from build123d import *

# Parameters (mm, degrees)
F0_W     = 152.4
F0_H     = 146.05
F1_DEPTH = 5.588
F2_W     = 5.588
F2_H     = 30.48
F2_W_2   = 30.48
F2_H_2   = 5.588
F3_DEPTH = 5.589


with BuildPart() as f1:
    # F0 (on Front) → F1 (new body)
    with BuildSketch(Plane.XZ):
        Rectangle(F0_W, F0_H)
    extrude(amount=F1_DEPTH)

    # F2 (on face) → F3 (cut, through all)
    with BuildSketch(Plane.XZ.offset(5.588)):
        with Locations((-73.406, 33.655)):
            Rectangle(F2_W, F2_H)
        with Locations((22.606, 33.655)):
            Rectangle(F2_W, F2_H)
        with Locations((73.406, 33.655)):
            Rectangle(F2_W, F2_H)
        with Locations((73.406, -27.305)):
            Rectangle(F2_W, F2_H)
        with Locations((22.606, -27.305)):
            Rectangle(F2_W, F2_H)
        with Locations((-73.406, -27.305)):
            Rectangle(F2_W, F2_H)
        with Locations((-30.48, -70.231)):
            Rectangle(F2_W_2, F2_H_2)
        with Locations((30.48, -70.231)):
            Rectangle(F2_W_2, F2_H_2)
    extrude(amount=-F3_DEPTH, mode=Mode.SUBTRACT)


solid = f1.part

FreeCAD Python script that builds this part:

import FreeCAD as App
import Part
import Sketcher

V = App.Vector
Q = App.Units.Quantity

doc = App.newDocument("Part")
params = doc.addObject("Spreadsheet::Sheet", "Params")
for row, (alias, value) in enumerate([
    ("sketch1_width", "6 in"),
    ("sketch1_height", "5.75 in"),
    ("pad1_length", "0.22 in"),
    ("sketch2_width", "1.2 in"),
    ("sketch2_width2", "0.22 in"),
], start=1):
    params.set(f"A{row}", alias)
    params.set(f"B{row}", "=" + value)
    params.setAlias(f"B{row}", alias)

body = doc.addObject("PartDesign::Body", "Body")

# Sketch on XZ plane
sketch1 = body.newObject("Sketcher::SketchObject", "Sketch")
sketch1.AttachmentSupport = (doc.getObject("XZ_Plane"), [""])
sketch1.MapMode = "FlatFace"
sketch1.addGeometry(Part.LineSegment(V(-76.2, 73.025, 0), V(-76.2, -73.025, 0)), False)
sketch1.addGeometry(Part.LineSegment(V(-76.2, -73.025, 0), V(76.2, -73.025, 0)), False)
sketch1.addGeometry(Part.LineSegment(V(76.2, -73.025, 0), V(76.2, 73.025, 0)), False)
sketch1.addGeometry(Part.LineSegment(V(76.2, 73.025, 0), V(-76.2, 73.025, 0)), False)
sketch1.addConstraint(Sketcher.Constraint("Coincident", 0, 2, 1, 1))
sketch1.addConstraint(Sketcher.Constraint("Coincident", 1, 2, 2, 1))
sketch1.addConstraint(Sketcher.Constraint("Coincident", 2, 2, 3, 1))
sketch1.addConstraint(Sketcher.Constraint("Coincident", 3, 2, 0, 1))
sketch1.addConstraint(Sketcher.Constraint("Vertical", 0))
sketch1.addConstraint(Sketcher.Constraint("Horizontal", 1))
sketch1.addConstraint(Sketcher.Constraint("Vertical", 2))
sketch1.addConstraint(Sketcher.Constraint("Horizontal", 3))
sketch1.addConstraint(Sketcher.Constraint("Symmetric", 0, 2, 2, 2, -1, 1))
sketch1.addConstraint(Sketcher.Constraint("DistanceX", 1, 1, 1, 2, Q("6 in")))
sketch1.addConstraint(Sketcher.Constraint("DistanceY", 0, 2, 0, 1, Q("5.75 in")))
sketch1.setExpression("Constraints[9]", "Params.sketch1_width")
sketch1.setExpression("Constraints[10]", "Params.sketch1_height")
pad1 = body.newObject("PartDesign::Pad", "Pad")
pad1.Profile = sketch1
pad1.setExpression("Length", "Params.pad1_length")

# Sketch on XZ plane
sketch2 = body.newObject("Sketcher::SketchObject", "Sketch001")
sketch2.AttachmentSupport = (doc.getObject("XZ_Plane"), [""])
sketch2.MapMode = "FlatFace"
sketch2.AttachmentOffset = App.Placement(V(0, 0, 0.22 * 25.4), App.Rotation())
sketch2.addGeometry(Part.LineSegment(V(-76.2, 48.895, 0), V(-76.2, 18.415, 0)), False)
sketch2.addGeometry(Part.LineSegment(V(-76.2, 18.415, 0), V(-70.612, 18.415, 0)), False)
sketch2.addGeometry(Part.LineSegment(V(-70.612, 18.415, 0), V(-70.612, 48.895, 0)), False)
sketch2.addGeometry(Part.LineSegment(V(-70.612, 48.895, 0), V(-76.2, 48.895, 0)), False)
sketch2.addGeometry(Part.LineSegment(V(19.812, 48.895, 0), V(19.812, 18.415, 0)), False)
sketch2.addGeometry(Part.LineSegment(V(19.812, 18.415, 0), V(25.4, 18.415, 0)), False)
sketch2.addGeometry(Part.LineSegment(V(25.4, 18.415, 0), V(25.4, 48.895, 0)), False)
sketch2.addGeometry(Part.LineSegment(V(25.4, 48.895, 0), V(19.812, 48.895, 0)), False)
sketch2.addGeometry(Part.LineSegment(V(70.612, 48.895, 0), V(70.612, 18.415, 0)), False)
sketch2.addGeometry(Part.LineSegment(V(70.612, 18.415, 0), V(76.2, 18.415, 0)), False)
sketch2.addGeometry(Part.LineSegment(V(76.2, 18.415, 0), V(76.2, 48.895, 0)), False)
sketch2.addGeometry(Part.LineSegment(V(76.2, 48.895, 0), V(70.612, 48.895, 0)), False)
sketch2.addGeometry(Part.LineSegment(V(70.612, -12.065, 0), V(70.612, -42.545, 0)), False)
sketch2.addGeometry(Part.LineSegment(V(70.612, -42.545, 0), V(76.2, -42.545, 0)), False)
sketch2.addGeometry(Part.LineSegment(V(76.2, -42.545, 0), V(76.2, -12.065, 0)), False)
sketch2.addGeometry(Part.LineSegment(V(76.2, -12.065, 0), V(70.612, -12.065, 0)), False)
sketch2.addGeometry(Part.LineSegment(V(19.812, -12.065, 0), V(19.812, -42.545, 0)), False)
sketch2.addGeometry(Part.LineSegment(V(19.812, -42.545, 0), V(25.4, -42.545, 0)), False)
sketch2.addGeometry(Part.LineSegment(V(25.4, -42.545, 0), V(25.4, -12.065, 0)), False)
sketch2.addGeometry(Part.LineSegment(V(25.4, -12.065, 0), V(19.812, -12.065, 0)), False)
sketch2.addGeometry(Part.LineSegment(V(-76.2, -12.065, 0), V(-76.2, -42.545, 0)), False)
sketch2.addGeometry(Part.LineSegment(V(-76.2, -42.545, 0), V(-70.612, -42.545, 0)), False)
sketch2.addGeometry(Part.LineSegment(V(-70.612, -42.545, 0), V(-70.612, -12.065, 0)), False)
sketch2.addGeometry(Part.LineSegment(V(-70.612, -12.065, 0), V(-76.2, -12.065, 0)), False)
sketch2.addGeometry(Part.LineSegment(V(-45.72, -67.437, 0), V(-45.72, -73.025, 0)), False)
sketch2.addGeometry(Part.LineSegment(V(-45.72, -73.025, 0), V(-15.24, -73.025, 0)), False)
sketch2.addGeometry(Part.LineSegment(V(-15.24, -73.025, 0), V(-15.24, -67.437, 0)), False)
sketch2.addGeometry(Part.LineSegment(V(-15.24, -67.437, 0), V(-45.72, -67.437, 0)), False)
sketch2.addGeometry(Part.LineSegment(V(15.24, -67.437, 0), V(15.24, -73.025, 0)), False)
sketch2.addGeometry(Part.LineSegment(V(15.24, -73.025, 0), V(45.72, -73.025, 0)), False)
sketch2.addGeometry(Part.LineSegment(V(45.72, -73.025, 0), V(45.72, -67.437, 0)), False)
sketch2.addGeometry(Part.LineSegment(V(45.72, -67.437, 0), V(15.24, -67.437, 0)), False)
sketch2.addConstraint(Sketcher.Constraint("Coincident", 0, 2, 1, 1))
sketch2.addConstraint(Sketcher.Constraint("Coincident", 1, 2, 2, 1))
sketch2.addConstraint(Sketcher.Constraint("Coincident", 2, 2, 3, 1))
sketch2.addConstraint(Sketcher.Constraint("Coincident", 3, 2, 0, 1))
sketch2.addConstraint(Sketcher.Constraint("Coincident", 4, 2, 5, 1))
sketch2.addConstraint(Sketcher.Constraint("Coincident", 5, 2, 6, 1))
sketch2.addConstraint(Sketcher.Constraint("Coincident", 6, 2, 7, 1))
sketch2.addConstraint(Sketcher.Constraint("Coincident", 7, 2, 4, 1))
sketch2.addConstraint(Sketcher.Constraint("Coincident", 8, 2, 9, 1))
sketch2.addConstraint(Sketcher.Constraint("Coincident", 9, 2, 10, 1))
sketch2.addConstraint(Sketcher.Constraint("Coincident", 10, 2, 11, 1))
sketch2.addConstraint(Sketcher.Constraint("Coincident", 11, 2, 8, 1))
sketch2.addConstraint(Sketcher.Constraint("Coincident", 12, 2, 13, 1))
sketch2.addConstraint(Sketcher.Constraint("Coincident", 13, 2, 14, 1))
sketch2.addConstraint(Sketcher.Constraint("Coincident", 14, 2, 15, 1))
sketch2.addConstraint(Sketcher.Constraint("Coincident", 15, 2, 12, 1))
sketch2.addConstraint(Sketcher.Constraint("Coincident", 16, 2, 17, 1))
sketch2.addConstraint(Sketcher.Constraint("Coincident", 17, 2, 18, 1))
sketch2.addConstraint(Sketcher.Constraint("Coincident", 18, 2, 19, 1))
sketch2.addConstraint(Sketcher.Constraint("Coincident", 19, 2, 16, 1))
sketch2.addConstraint(Sketcher.Constraint("Coincident", 20, 2, 21, 1))
sketch2.addConstraint(Sketcher.Constraint("Coincident", 21, 2, 22, 1))
sketch2.addConstraint(Sketcher.Constraint("Coincident", 22, 2, 23, 1))
sketch2.addConstraint(Sketcher.Constraint("Coincident", 23, 2, 20, 1))
sketch2.addConstraint(Sketcher.Constraint("Coincident", 24, 2, 25, 1))
sketch2.addConstraint(Sketcher.Constraint("Coincident", 25, 2, 26, 1))
sketch2.addConstraint(Sketcher.Constraint("Coincident", 26, 2, 27, 1))
sketch2.addConstraint(Sketcher.Constraint("Coincident", 27, 2, 24, 1))
sketch2.addConstraint(Sketcher.Constraint("Coincident", 28, 2, 29, 1))
sketch2.addConstraint(Sketcher.Constraint("Coincident", 29, 2, 30, 1))
sketch2.addConstraint(Sketcher.Constraint("Coincident", 30, 2, 31, 1))
sketch2.addConstraint(Sketcher.Constraint("Coincident", 31, 2, 28, 1))
sketch2.addConstraint(Sketcher.Constraint("Vertical", 0))
sketch2.addConstraint(Sketcher.Constraint("Horizontal", 1))
sketch2.addConstraint(Sketcher.Constraint("Vertical", 2))
sketch2.addConstraint(Sketcher.Constraint("Horizontal", 3))
sketch2.addConstraint(Sketcher.Constraint("Vertical", 4))
sketch2.addConstraint(Sketcher.Constraint("Horizontal", 5))
sketch2.addConstraint(Sketcher.Constraint("Vertical", 6))
sketch2.addConstraint(Sketcher.Constraint("Horizontal", 7))
sketch2.addConstraint(Sketcher.Constraint("Vertical", 8))
sketch2.addConstraint(Sketcher.Constraint("Horizontal", 9))
sketch2.addConstraint(Sketcher.Constraint("Vertical", 10))
sketch2.addConstraint(Sketcher.Constraint("Horizontal", 11))
sketch2.addConstraint(Sketcher.Constraint("Vertical", 12))
sketch2.addConstraint(Sketcher.Constraint("Horizontal", 13))
sketch2.addConstraint(Sketcher.Constraint("Vertical", 14))
sketch2.addConstraint(Sketcher.Constraint("Horizontal", 15))
sketch2.addConstraint(Sketcher.Constraint("Vertical", 16))
sketch2.addConstraint(Sketcher.Constraint("Horizontal", 17))
sketch2.addConstraint(Sketcher.Constraint("Vertical", 18))
sketch2.addConstraint(Sketcher.Constraint("Horizontal", 19))
sketch2.addConstraint(Sketcher.Constraint("Vertical", 20))
sketch2.addConstraint(Sketcher.Constraint("Horizontal", 21))
sketch2.addConstraint(Sketcher.Constraint("Vertical", 22))
sketch2.addConstraint(Sketcher.Constraint("Horizontal", 23))
sketch2.addConstraint(Sketcher.Constraint("Vertical", 24))
sketch2.addConstraint(Sketcher.Constraint("Horizontal", 25))
sketch2.addConstraint(Sketcher.Constraint("Vertical", 26))
sketch2.addConstraint(Sketcher.Constraint("Horizontal", 27))
sketch2.addConstraint(Sketcher.Constraint("Vertical", 28))
sketch2.addConstraint(Sketcher.Constraint("Horizontal", 29))
sketch2.addConstraint(Sketcher.Constraint("Vertical", 30))
sketch2.addConstraint(Sketcher.Constraint("Horizontal", 31))
sketch2.addConstraint(Sketcher.Constraint("Symmetric", 1, 2, 8, 2, -2))
sketch2.addConstraint(Sketcher.Constraint("Symmetric", 3, 2, 10, 2, -2))
sketch2.addConstraint(Sketcher.Constraint("Symmetric", 13, 2, 20, 2, -2))
sketch2.addConstraint(Sketcher.Constraint("Symmetric", 15, 2, 22, 2, -2))
sketch2.addConstraint(Sketcher.Constraint("Symmetric", 25, 2, 28, 2, -2))
sketch2.addConstraint(Sketcher.Constraint("Symmetric", 27, 2, 30, 2, -2))
sketch2.addConstraint(Sketcher.Constraint("Horizontal", 1, 2, 4, 2))
sketch2.addConstraint(Sketcher.Constraint("Horizontal", 3, 2, 6, 2))
sketch2.addConstraint(Sketcher.Constraint("Horizontal", 13, 2, 16, 2))
sketch2.addConstraint(Sketcher.Constraint("Horizontal", 15, 2, 18, 2))
sketch2.addConstraint(Sketcher.Constraint("Vertical", 11, 2, 12, 2))
sketch2.addConstraint(Sketcher.Constraint("Vertical", 10, 2, 13, 2))
sketch2.addConstraint(Sketcher.Constraint("Vertical", 7, 2, 16, 2))
sketch2.addConstraint(Sketcher.Constraint("Vertical", 6, 2, 17, 2))
sketch2.addConstraint(Sketcher.Constraint("Equal", 3, 5))
sketch2.addConstraint(Sketcher.Constraint("Equal", 31, 0))
sketch2.addConstraint(Sketcher.Constraint("Equal", 10, 12))
sketch2.addConstraint(Sketcher.Constraint("Equal", 23, 24))
sketch2.addConstraint(Sketcher.Constraint("DistanceX", 25, 1, 25, 2, Q("1.2 in")))
sketch2.addConstraint(Sketcher.Constraint("DistanceX", 0, 2, -1, 1, Q("3 in")))
sketch2.addConstraint(Sketcher.Constraint("DistanceX", -1, 1, 5, 2, Q("1 in")))
sketch2.addConstraint(Sketcher.Constraint("DistanceX", 1, 1, 1, 2, Q("0.22 in")))
sketch2.addConstraint(Sketcher.Constraint("DistanceX", 24, 2, -1, 1, Q("1.8 in")))
sketch2.addConstraint(Sketcher.Constraint("DistanceY", 12, 2, 8, 2, Q("2.4 in")))
sketch2.addConstraint(Sketcher.Constraint("DistanceY", 24, 2, 21, 2, Q("1.2 in")))
sketch2.addConstraint(Sketcher.Constraint("DistanceY", -1, 1, 0, 2, Q("0.725 in")))
sketch2.setExpression("Constraints[82]", "Params.sketch2_width")
sketch2.setExpression("Constraints[85]", "Params.sketch2_width2")
pocket1 = body.newObject("PartDesign::Pocket", "Pocket")
pocket1.Profile = sketch2
pocket1.Type = "ThroughAll"

doc.recompute()
